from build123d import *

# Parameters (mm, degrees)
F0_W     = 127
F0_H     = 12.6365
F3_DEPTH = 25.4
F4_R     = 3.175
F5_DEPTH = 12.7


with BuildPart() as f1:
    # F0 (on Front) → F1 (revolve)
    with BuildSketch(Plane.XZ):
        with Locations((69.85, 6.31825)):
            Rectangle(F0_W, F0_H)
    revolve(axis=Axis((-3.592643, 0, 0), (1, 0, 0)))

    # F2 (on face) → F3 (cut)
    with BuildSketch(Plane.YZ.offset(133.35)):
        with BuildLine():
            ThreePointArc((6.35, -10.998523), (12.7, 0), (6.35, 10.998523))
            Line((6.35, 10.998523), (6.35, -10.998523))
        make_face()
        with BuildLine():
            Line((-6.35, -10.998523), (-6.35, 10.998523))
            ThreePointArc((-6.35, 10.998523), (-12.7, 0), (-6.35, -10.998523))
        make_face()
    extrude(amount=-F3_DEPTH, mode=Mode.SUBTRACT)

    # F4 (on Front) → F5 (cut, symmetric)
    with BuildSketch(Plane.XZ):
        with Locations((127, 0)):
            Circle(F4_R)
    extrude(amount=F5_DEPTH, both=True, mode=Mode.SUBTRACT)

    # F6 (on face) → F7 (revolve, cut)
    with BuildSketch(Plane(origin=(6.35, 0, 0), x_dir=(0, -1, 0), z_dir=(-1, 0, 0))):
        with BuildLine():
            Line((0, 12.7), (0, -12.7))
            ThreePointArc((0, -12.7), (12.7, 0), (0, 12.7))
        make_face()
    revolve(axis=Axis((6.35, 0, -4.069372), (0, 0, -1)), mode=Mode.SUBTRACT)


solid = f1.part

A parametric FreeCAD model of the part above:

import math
import FreeCAD as App
import Part
import Sketcher

V = App.Vector
Q = App.Units.Quantity


def add_polygon(sketch, points):
    """Adds a closed chain of lines whose ends are joined by coincident constraints."""
    first, n = sketch.GeometryCount, len(points)
    for a, b in zip(points, points[1:] + points[:1]):
        sketch.addGeometry(Part.LineSegment(App.Vector(*a, 0), App.Vector(*b, 0)), False)
    for i in range(n):
        sketch.addConstraint(Sketcher.Constraint("Coincident", first + i, 2, first + (i + 1) % n, 1))

doc = App.newDocument("Part")
body = doc.addObject("PartDesign::Body", "Body")

# Sketch on XZ plane
sketch1 = body.newObject("Sketcher::SketchObject", "Sketch")
sketch1.AttachmentSupport = (doc.getObject("XZ_Plane"), [""])
sketch1.MapMode = "FlatFace"
add_polygon(sketch1, [(6, 13), (6, 0), (133, 0), (133, 13)])  # lines 0-3
sketch1.addConstraint([
    Sketcher.Constraint("Vertical", 0),
    Sketcher.Constraint("Horizontal", 1),
    Sketcher.Constraint("Vertical", 2),
    Sketcher.Constraint("Horizontal", 3),
    Sketcher.Constraint("PointOnObject", 0, 2, -1),
    Sketcher.Constraint("DistanceX", 1, 1, 1, 2, Q("5 in")),
    Sketcher.Constraint("DistanceX", -1, 1, 0, 2, Q("0.25 in")),
    Sketcher.Constraint("DistanceY", 0, 2, 0, 1, Q("0.4975 in")),
])
revolution = body.newObject("PartDesign::Revolution", "Revolution")
revolution.Profile = sketch1
revolution.ReferenceAxis = (sketch1, ["H_Axis"])
revolution.Angle = 360

# Sketch on YZ plane
sketch2 = body.newObject("Sketcher::SketchObject", "Sketch001")
sketch2.AttachmentSupport = (doc.getObject("YZ_Plane"), [""])
sketch2.MapMode = "FlatFace"
sketch2.AttachmentOffset = App.Placement(V(0, 0, 5.25 * 25.4), App.Rotation())
sketch2.addGeometry([
    Part.ArcOfCircle(Part.Circle(V(0, 0, 0), V(0, 0, 1), 13), math.radians(-60), math.radians(60)),
    Part.LineSegment(V(6, 11, 0), V(6, -11, 0)),
    Part.LineSegment(V(-6, -11, 0), V(-6, 11, 0)),
    Part.ArcOfCircle(Part.Circle(V(0, 0, 0), V(0, 0, 1), 13), math.radians(120), math.radians(240)),
], False)
sketch2.addConstraint([
    Sketcher.Constraint("Coincident", 0, 1, 1, 2),
    Sketcher.Constraint("Coincident", 1, 1, 0, 2),
    Sketcher.Constraint("Coincident", 2, 1, 3, 2),
    Sketcher.Constraint("Coincident", 3, 1, 2, 2),
    Sketcher.Constraint("Vertical", 1),
    Sketcher.Constraint("Vertical", 2),
    Sketcher.Constraint("Coincident", 0, 3, -1, 1),
    Sketcher.Constraint("Coincident", 3, 3, -1, 1),
    Sketcher.Constraint("Equal", 0, 3),
    Sketcher.Constraint("Horizontal", 0, 1, 2, 1),
    Sketcher.Constraint("Radius", 0, Q("0.5 in")),
    Sketcher.Constraint("DistanceX", 2, 1, 0, 1, Q("0.5 in")),
])
pocket1 = body.newObject("PartDesign::Pocket", "Pocket")
pocket1.Profile = sketch2
pocket1.Length = Q("1 in")

# Sketch on XZ plane
sketch3 = body.newObject("Sketcher::SketchObject", "Sketch002")
sketch3.AttachmentSupport = (doc.getObject("XZ_Plane"), [""])
sketch3.MapMode = "FlatFace"
sketch3.addGeometry(Part.Circle(V(127, 0, 0), V(0, 0, 1), 3.2), False)
sketch3.addConstraint([
    Sketcher.Constraint("PointOnObject", 0, 3, -1),
    Sketcher.Constraint("Diameter", 0, Q("0.25 in")),
    Sketcher.Constraint("DistanceX", -1, 1, 0, 3, Q("5 in")),
])
pocket2 = body.newObject("PartDesign::Pocket", "Pocket001")
pocket2.Profile = sketch3
pocket2.Length = Q("1 in")
pocket2.Midplane = True

# Sketch on YZ plane
sketch4 = body.newObject("Sketcher::SketchObject", "Sketch003")
sketch4.AttachmentSupport = (doc.getObject("YZ_Plane"), [""])
sketch4.MapMode = "FlatFace"
sketch4.AttachmentOffset = App.Placement(V(0, 0, 0.25 * 25.4), App.Rotation())
sketch4.addGeometry([
    Part.LineSegment(V(0, 13, 0), V(0, -13, 0)),
    Part.ArcOfCircle(Part.Circle(V(0, 0, 0), V(0, 0, 1), 13), math.radians(90), math.radians(270)),
], False)
sketch4.addConstraint([
    Sketcher.Constraint("Coincident", 0, 1, 1, 1),
    Sketcher.Constraint("Coincident", 1, 2, 0, 2),
    Sketcher.Constraint("Vertical", 0),
    Sketcher.Constraint("Coincident", 1, 3, -1, 1),
    Sketcher.Constraint("PointOnObject", 0, 1, -2),
    Sketcher.Constraint("Radius", 1, Q("0.5 in")),
])
groove = body.newObject("PartDesign::Groove", "Groove")
groove.Profile = sketch4
groove.ReferenceAxis = (sketch4, ["V_Axis"])
groove.Angle = 360

doc.recompute()
